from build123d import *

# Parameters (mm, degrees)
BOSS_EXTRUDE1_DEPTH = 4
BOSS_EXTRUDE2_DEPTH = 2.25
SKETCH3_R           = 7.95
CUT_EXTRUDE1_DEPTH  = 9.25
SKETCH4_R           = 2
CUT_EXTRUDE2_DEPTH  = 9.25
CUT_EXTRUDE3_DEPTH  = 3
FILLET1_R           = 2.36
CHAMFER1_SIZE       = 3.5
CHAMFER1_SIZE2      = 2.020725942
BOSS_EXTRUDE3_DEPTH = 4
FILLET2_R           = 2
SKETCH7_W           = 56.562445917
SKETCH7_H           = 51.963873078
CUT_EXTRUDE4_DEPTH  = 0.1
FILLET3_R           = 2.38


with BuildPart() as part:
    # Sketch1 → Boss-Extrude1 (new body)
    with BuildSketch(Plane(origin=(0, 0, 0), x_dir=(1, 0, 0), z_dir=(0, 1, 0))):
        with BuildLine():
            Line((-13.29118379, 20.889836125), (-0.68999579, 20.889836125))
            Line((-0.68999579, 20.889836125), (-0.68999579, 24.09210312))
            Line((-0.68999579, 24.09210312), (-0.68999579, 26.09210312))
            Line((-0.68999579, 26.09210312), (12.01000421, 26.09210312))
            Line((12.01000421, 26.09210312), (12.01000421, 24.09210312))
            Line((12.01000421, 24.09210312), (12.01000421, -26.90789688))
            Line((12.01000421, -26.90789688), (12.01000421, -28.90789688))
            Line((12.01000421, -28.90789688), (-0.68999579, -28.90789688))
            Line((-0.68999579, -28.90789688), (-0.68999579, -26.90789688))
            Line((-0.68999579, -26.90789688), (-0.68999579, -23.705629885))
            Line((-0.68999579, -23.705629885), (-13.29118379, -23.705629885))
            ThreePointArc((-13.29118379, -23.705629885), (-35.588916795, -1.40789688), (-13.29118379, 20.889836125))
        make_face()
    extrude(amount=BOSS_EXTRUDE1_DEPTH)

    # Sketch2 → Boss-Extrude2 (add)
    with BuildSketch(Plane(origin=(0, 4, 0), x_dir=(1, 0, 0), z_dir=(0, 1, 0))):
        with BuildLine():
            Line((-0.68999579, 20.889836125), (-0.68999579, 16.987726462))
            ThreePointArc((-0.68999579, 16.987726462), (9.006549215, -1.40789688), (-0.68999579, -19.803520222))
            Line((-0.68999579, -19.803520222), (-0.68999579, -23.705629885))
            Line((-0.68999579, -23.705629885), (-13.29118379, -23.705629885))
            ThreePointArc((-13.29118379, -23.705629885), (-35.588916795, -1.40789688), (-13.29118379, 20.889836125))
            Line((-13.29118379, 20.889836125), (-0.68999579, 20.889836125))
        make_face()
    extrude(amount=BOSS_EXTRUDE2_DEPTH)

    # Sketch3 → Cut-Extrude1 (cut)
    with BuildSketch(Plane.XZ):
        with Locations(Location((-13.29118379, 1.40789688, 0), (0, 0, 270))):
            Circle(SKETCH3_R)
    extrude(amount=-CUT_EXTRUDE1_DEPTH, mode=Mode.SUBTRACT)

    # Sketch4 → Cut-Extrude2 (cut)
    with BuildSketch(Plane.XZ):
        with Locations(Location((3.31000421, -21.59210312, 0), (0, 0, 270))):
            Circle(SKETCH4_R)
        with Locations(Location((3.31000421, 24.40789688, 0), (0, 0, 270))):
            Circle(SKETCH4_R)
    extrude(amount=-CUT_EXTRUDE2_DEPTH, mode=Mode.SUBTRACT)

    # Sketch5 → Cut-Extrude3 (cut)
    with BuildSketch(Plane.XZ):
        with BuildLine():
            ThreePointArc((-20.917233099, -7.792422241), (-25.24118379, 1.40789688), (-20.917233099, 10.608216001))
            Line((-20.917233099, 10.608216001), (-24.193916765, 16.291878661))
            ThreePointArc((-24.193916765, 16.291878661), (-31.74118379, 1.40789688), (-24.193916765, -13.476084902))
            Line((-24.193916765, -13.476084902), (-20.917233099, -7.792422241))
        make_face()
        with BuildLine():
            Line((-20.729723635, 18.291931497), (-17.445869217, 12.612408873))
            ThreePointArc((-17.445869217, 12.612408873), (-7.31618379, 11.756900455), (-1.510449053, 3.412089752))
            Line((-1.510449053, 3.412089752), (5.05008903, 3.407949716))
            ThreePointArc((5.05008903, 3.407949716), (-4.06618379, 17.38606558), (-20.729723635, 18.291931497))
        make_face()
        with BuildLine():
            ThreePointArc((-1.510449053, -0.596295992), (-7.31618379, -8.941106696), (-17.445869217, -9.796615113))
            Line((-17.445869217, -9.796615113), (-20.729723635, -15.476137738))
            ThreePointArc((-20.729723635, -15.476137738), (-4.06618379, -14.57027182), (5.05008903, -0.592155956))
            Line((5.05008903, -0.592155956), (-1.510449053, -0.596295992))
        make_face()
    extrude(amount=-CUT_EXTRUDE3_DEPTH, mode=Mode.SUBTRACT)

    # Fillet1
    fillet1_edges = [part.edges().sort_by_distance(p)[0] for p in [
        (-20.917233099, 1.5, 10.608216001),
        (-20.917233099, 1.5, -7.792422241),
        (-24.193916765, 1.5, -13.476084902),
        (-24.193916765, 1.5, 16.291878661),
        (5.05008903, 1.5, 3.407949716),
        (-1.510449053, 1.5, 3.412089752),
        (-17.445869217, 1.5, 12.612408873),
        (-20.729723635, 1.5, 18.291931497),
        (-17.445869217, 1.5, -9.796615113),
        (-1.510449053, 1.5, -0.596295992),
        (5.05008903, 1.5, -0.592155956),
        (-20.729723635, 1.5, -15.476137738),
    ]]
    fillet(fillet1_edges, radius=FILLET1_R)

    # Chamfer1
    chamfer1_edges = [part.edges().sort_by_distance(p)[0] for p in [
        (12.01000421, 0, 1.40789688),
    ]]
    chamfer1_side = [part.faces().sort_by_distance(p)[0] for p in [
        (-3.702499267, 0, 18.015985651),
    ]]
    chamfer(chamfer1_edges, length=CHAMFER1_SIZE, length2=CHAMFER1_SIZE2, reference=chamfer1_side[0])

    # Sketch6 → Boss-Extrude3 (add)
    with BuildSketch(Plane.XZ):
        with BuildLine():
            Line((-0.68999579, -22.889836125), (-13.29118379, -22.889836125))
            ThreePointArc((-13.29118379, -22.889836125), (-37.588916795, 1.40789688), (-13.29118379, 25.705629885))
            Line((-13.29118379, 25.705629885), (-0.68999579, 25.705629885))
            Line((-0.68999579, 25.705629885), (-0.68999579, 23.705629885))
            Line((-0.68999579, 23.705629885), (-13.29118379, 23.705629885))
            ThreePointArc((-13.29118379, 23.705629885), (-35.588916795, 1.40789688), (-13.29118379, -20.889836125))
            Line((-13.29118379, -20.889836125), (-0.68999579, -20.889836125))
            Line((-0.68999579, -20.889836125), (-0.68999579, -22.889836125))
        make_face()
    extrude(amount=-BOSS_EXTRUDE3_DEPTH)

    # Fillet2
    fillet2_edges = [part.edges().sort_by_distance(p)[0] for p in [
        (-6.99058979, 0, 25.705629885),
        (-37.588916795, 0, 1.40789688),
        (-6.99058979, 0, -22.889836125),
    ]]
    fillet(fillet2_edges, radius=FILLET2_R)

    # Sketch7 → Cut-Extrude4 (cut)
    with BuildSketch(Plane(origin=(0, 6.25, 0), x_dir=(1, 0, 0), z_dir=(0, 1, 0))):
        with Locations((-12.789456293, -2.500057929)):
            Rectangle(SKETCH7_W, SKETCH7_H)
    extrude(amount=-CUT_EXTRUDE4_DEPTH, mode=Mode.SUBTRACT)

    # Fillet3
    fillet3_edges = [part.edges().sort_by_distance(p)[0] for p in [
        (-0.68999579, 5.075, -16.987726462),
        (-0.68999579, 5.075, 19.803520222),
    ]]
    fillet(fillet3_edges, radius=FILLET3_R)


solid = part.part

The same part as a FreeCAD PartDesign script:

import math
import FreeCAD as App
import Part
import Sketcher


def edges_at(feature, points):
    """Names of the edges that pass closest to the given points."""
    edges = feature.Shape.Edges
    near = lambda p: min(range(len(edges)), key=lambda i: edges[i].distToShape(Part.Vertex(*p))[0])
    return sorted({f"Edge{near(p) + 1}" for p in points})

doc = App.newDocument("Part")
body = doc.addObject("PartDesign::Body", "Body")

sketch1 = body.newObject("Sketcher::SketchObject", "Sketch")
sketch1.AttachmentSupport = (doc.getObject("XZ_Plane"), [""])
sketch1.MapMode = "FlatFace"
sketch1.addGeometry([
    Part.LineSegment(App.Vector(-0.689996, -20.889836, 0), App.Vector(-13.291184, -20.889836, 0)),
    Part.ArcOfCircle(Part.Circle(App.Vector(-13.291184, 1.407897, 0), App.Vector(0, 0, 1), 22.297733), math.radians(90), math.radians(270)),
    Part.LineSegment(App.Vector(-13.291184, 23.70563, 0), App.Vector(-0.689996, 23.70563, 0)),
    Part.LineSegment(App.Vector(-0.689996, 23.70563, 0), App.Vector(-0.689996, 28.907897, 0)),
    Part.LineSegment(App.Vector(-0.689996, 28.907897, 0), App.Vector(12.010004, 28.907897, 0)),
    Part.LineSegment(App.Vector(12.010004, 28.907897, 0), App.Vector(12.010004, -26.092103, 0)),
    Part.LineSegment(App.Vector(12.010004, -26.092103, 0), App.Vector(-0.689996, -26.092103, 0)),
    Part.LineSegment(App.Vector(-0.689996, -26.092103, 0), App.Vector(-0.689996, -20.889836, 0)),
], False)
sketch1.addConstraint([
    Sketcher.Constraint("Tangent", 0, 2, 1, 2),
    Sketcher.Constraint("Tangent", 1, 1, 2, 1),
    Sketcher.Constraint("Coincident", 2, 2, 3, 1),
    Sketcher.Constraint("Coincident", 3, 2, 4, 1),
    Sketcher.Constraint("Coincident", 4, 2, 5, 1),
    Sketcher.Constraint("Coincident", 5, 2, 6, 1),
    Sketcher.Constraint("Coincident", 6, 2, 7, 1),
    Sketcher.Constraint("Coincident", 7, 2, 0, 1),
    Sketcher.Constraint("Horizontal", 0),
    Sketcher.Constraint("Horizontal", 2),
    Sketcher.Constraint("Vertical", 3),
    Sketcher.Constraint("Horizontal", 4),
    Sketcher.Constraint("Vertical", 5),
    Sketcher.Constraint("Horizontal", 6),
    Sketcher.Constraint("Vertical", 7),
    Sketcher.Constraint("Vertical", 3, 2, 6, 2),
    Sketcher.Constraint("Equal", 3, 7),
    Sketcher.Constraint("DistanceY", 5, 2, 5, 1, 55.0),
    Sketcher.Constraint("DistanceX", 4, 1, 4, 2, 12.7),
    Sketcher.Constraint("Radius", 1, 22.297733),
    Sketcher.Constraint("DistanceX", 0, 2, 0, 1, 12.601188),
    Sketcher.Constraint("DistanceY", -1, 1, 1, 1, 23.70563),
    Sketcher.Constraint("DistanceX", 1, 3, -1, 1, 13.291184),
])
pad1 = body.newObject("PartDesign::Pad", "Pad")
pad1.Profile = sketch1
pad1.Length = 4
pad1.Reversed = True

sketch2 = body.newObject("Sketcher::SketchObject", "Sketch001")
sketch2.AttachmentSupport = (doc.getObject("XZ_Plane"), [""])
sketch2.MapMode = "FlatFace"
sketch2.AttachmentOffset = App.Placement(App.Vector(0, 0, -4), App.Rotation())
sketch2.addGeometry([
    Part.LineSegment(App.Vector(-0.689996, -16.987726, 0), App.Vector(-0.689996, -20.889836, 0)),
    Part.LineSegment(App.Vector(-0.689996, -20.889836, 0), App.Vector(-13.291184, -20.889836, 0)),
    Part.ArcOfCircle(Part.Circle(App.Vector(-13.291184, 1.407897, 0), App.Vector(0, 0, 1), 22.297733), math.radians(90), math.radians(270)),
    Part.LineSegment(App.Vector(-13.291184, 23.70563, 0), App.Vector(-0.689996, 23.70563, 0)),
    Part.LineSegment(App.Vector(-0.689996, 23.70563, 0), App.Vector(-0.689996, 19.80352, 0)),
    Part.ArcOfCircle(Part.Circle(App.Vector(-13.291184, 1.407897, 0), App.Vector(0, 0, 1), 22.297733), math.radians(-55.588462), math.radians(55.588462)),
], False)
sketch2.addConstraint([
    Sketcher.Constraint("Coincident", 0, 2, 1, 1),
    Sketcher.Constraint("Tangent", 1, 2, 2, 2),
    Sketcher.Constraint("Tangent", 2, 1, 3, 1),
    Sketcher.Constraint("Coincident", 3, 2, 4, 1),
    Sketcher.Constraint("Coincident", 4, 2, 5, 2),
    Sketcher.Constraint("Coincident", 5, 1, 0, 1),
    Sketcher.Constraint("Vertical", 0),
    Sketcher.Constraint("Horizontal", 1),
    Sketcher.Constraint("Horizontal", 3),
    Sketcher.Constraint("Vertical", 4),
    Sketcher.Constraint("Coincident", 5, 3, 2, 3),
    Sketcher.Constraint("Equal", 2, 5),
    Sketcher.Constraint("Vertical", 0, 2, 3, 2),
    Sketcher.Constraint("Radius", 2, 22.297733),
    Sketcher.Constraint("DistanceY", 0, 2, 0, 1, 3.90211),
    Sketcher.Constraint("DistanceY", -1, 1, 2, 1, 23.70563),
    Sketcher.Constraint("DistanceX", 2, 3, -1, 1, 13.291184),
])
pad2 = body.newObject("PartDesign::Pad", "Pad001")
pad2.Profile = sketch2
pad2.Length = 2.25
pad2.Reversed = True

sketch3 = body.newObject("Sketcher::SketchObject", "Sketch002")
sketch3.AttachmentSupport = (doc.getObject("XZ_Plane"), [""])
sketch3.MapMode = "FlatFace"
sketch3.addGeometry(Part.Circle(App.Vector(-13.291184, 1.407897, 0), App.Vector(0, 0, 1), 7.95), False)
sketch3.addConstraint([
    Sketcher.Constraint("Diameter", 0, 15.9),
    Sketcher.Constraint("DistanceX", 0, 3, -1, 1, 13.291184),
    Sketcher.Constraint("DistanceY", -1, 1, 0, 3, 1.407897),
])
pocket1 = body.newObject("PartDesign::Pocket", "Pocket")
pocket1.Profile = sketch3
pocket1.Length = 9.25

sketch4 = body.newObject("Sketcher::SketchObject", "Sketch003")
sketch4.AttachmentSupport = (doc.getObject("XZ_Plane"), [""])
sketch4.MapMode = "FlatFace"
sketch4.addGeometry([
    Part.Circle(App.Vector(3.310004, -21.592103, 0), App.Vector(0, 0, 1), 2),
    Part.Circle(App.Vector(3.310004, 24.407897, 0), App.Vector(0, 0, 1), 2),
], False)
sketch4.addConstraint([
    Sketcher.Constraint("Equal", 0, 1),
    Sketcher.Constraint("Vertical", 0, 3, 1, 3),
    Sketcher.Constraint("Diameter", 0, 4.0),
    Sketcher.Constraint("DistanceY", 0, 3, 1, 3, 46.0),
    Sketcher.Constraint("DistanceX", -1, 1, 0, 3, 3.310004),
    Sketcher.Constraint("DistanceY", 0, 3, -1, 1, 21.592103),
])
pocket2 = body.newObject("PartDesign::Pocket", "Pocket001")
pocket2.Profile = sketch4
pocket2.Length = 9.25

sketch5 = body.newObject("Sketcher::SketchObject", "Sketch004")
sketch5.AttachmentSupport = (doc.getObject("XZ_Plane"), [""])
sketch5.MapMode = "FlatFace"
sketch5.addGeometry([
    Part.ArcOfCircle(Part.Circle(App.Vector(-13.291184, 1.407897, 0), App.Vector(0, 0, 1), 11.95), math.radians(129.654984), math.radians(230.345016)),
    Part.LineSegment(App.Vector(-20.917233, 10.608216, 0), App.Vector(-24.193917, 16.291879, 0)),
    Part.ArcOfCircle(Part.Circle(App.Vector(-13.291184, 1.407897, 0), App.Vector(0, 0, 1), 18.45), math.radians(126.223318), math.radians(233.776682)),
    Part.LineSegment(App.Vector(-24.193917, -13.476085, 0), App.Vector(-20.917233, -7.792422, 0)),
    Part.LineSegment(App.Vector(-20.729724, 18.291931, 0), App.Vector(-17.445869, 12.612409, 0)),
    Part.ArcOfCircle(Part.Circle(App.Vector(-13.291184, 1.407897, 0), App.Vector(0, 0, 1), 11.95), math.radians(9.654984), math.radians(110.345016)),
    Part.LineSegment(App.Vector(-1.510449, 3.41209, 0), App.Vector(5.050089, 3.40795, 0)),
    Part.ArcOfCircle(Part.Circle(App.Vector(-13.291184, 1.407897, 0), App.Vector(0, 0, 1), 18.45), math.radians(6.223318), math.radians(113.776682)),
    Part.ArcOfCircle(Part.Circle(App.Vector(-13.291184, 1.407897, 0), App.Vector(0, 0, 1), 11.95), math.radians(-110.345016), math.radians(-9.654984)),
    Part.LineSegment(App.Vector(-17.445869, -9.796615, 0), App.Vector(-20.729724, -15.476138, 0)),
    Part.ArcOfCircle(Part.Circle(App.Vector(-13.291184, 1.407897, 0), App.Vector(0, 0, 1), 18.45), math.radians(-113.776682), math.radians(-6.223318)),
    Part.LineSegment(App.Vector(5.050089, -0.592156, 0), App.Vector(-1.510449, -0.596296, 0)),
], False)
sketch5.addConstraint([
    Sketcher.Constraint("Coincident", 0, 1, 1, 1),
    Sketcher.Constraint("Coincident", 1, 2, 2, 1),
    Sketcher.Constraint("Coincident", 2, 2, 3, 1),
    Sketcher.Constraint("Coincident", 3, 2, 0, 2),
    Sketcher.Constraint("Coincident", 4, 2, 5, 2),
    Sketcher.Constraint("Coincident", 5, 1, 6, 1),
    Sketcher.Constraint("Coincident", 6, 2, 7, 1),
    Sketcher.Constraint("Coincident", 7, 2, 4, 1),
    Sketcher.Constraint("Coincident", 8, 1, 9, 1),
    Sketcher.Constraint("Coincident", 9, 2, 10, 1),
    Sketcher.Constraint("Coincident", 10, 2, 11, 1),
    Sketcher.Constraint("Coincident", 11, 2, 8, 2),
    Sketcher.Constraint("Coincident", 2, 3, 0, 3),
    Sketcher.Constraint("Coincident", 5, 3, 0, 3),
    Sketcher.Constraint("Coincident", 7, 3, 0, 3),
    Sketcher.Constraint("Coincident", 8, 3, 0, 3),
    Sketcher.Constraint("Coincident", 10, 3, 0, 3),
    Sketcher.Constraint("Equal", 0, 5),
    Sketcher.Constraint("Equal", 2, 7),
    Sketcher.Constraint("Equal", 5, 8),
    Sketcher.Constraint("Equal", 7, 10),
    Sketcher.Constraint("Vertical", 1, 2, 2, 2),
    Sketcher.Constraint("Vertical", 0, 1, 3, 2),
    Sketcher.Constraint("Vertical", 4, 2, 8, 1),
    Sketcher.Constraint("Vertical", 7, 2, 9, 2),
    Sketcher.Constraint("Vertical", 6, 2, 10, 2),
    Sketcher.Constraint("Vertical", 5, 1, 11, 2),
    Sketcher.Constraint("Equal", 3, 4),
    Sketcher.Constraint("Equal", 4, 6),
    Sketcher.Constraint("Radius", 0, 11.95),
    Sketcher.Constraint("Radius", 2, 18.45),
    Sketcher.Constraint("Distance", 1, 6.560539),
    Sketcher.Constraint("DistanceY", -1, 1, 1, 2, 16.291879),
    Sketcher.Constraint("DistanceX", 4, 2, -1, 1, 17.445869),
    Sketcher.Constraint("DistanceY", -1, 1, 4, 2, 12.612409),
    Sketcher.Constraint("DistanceX", 5, 1, -1, 1, 1.510449),
    Sketcher.Constraint("DistanceY", -1, 1, 5, 1, 3.41209),
])
pocket3 = body.newObject("PartDesign::Pocket", "Pocket002")
pocket3.Profile = sketch5
pocket3.Length = 3
doc.recompute()

fillet = body.newObject("PartDesign::Fillet", "Fillet")
fillet.Base = (pocket3, edges_at(pocket3, [
    (-20.917, 1.5, 10.608),
    (-20.917, 1.5, -7.792),
    (-24.194, 1.5, -13.476),
    (-24.194, 1.5, 16.292),
    (5.05, 1.5, 3.408),
    (-1.51, 1.5, 3.412),
    (-17.446, 1.5, 12.612),
    (-20.73, 1.5, 18.292),
    (-17.446, 1.5, -9.797),
    (-1.51, 1.5, -0.596),
    (5.05, 1.5, -0.592),
    (-20.73, 1.5, -15.476),
]))
fillet.Radius = 2.36
doc.recompute()

chamfer = body.newObject("PartDesign::Chamfer", "Chamfer")
chamfer.Base = (fillet, edges_at(fillet, [(12.01, 0, 1.408)]))
chamfer.ChamferType = "Two distances"
chamfer.Size = 3.5
chamfer.Size2 = 2.020726

sketch6 = body.newObject("Sketcher::SketchObject", "Sketch005")
sketch6.AttachmentSupport = (doc.getObject("XZ_Plane"), [""])
sketch6.MapMode = "FlatFace"
sketch6.addGeometry([
    Part.LineSegment(App.Vector(-13.291184, -22.889836, 0), App.Vector(-0.689996, -22.889836, 0)),
    Part.LineSegment(App.Vector(-0.689996, -22.889836, 0), App.Vector(-0.689996, -20.889836, 0)),
    Part.LineSegment(App.Vector(-0.689996, -20.889836, 0), App.Vector(-13.291184, -20.889836, 0)),
    Part.ArcOfCircle(Part.Circle(App.Vector(-13.291184, 1.407897, 0), App.Vector(0, 0, 1), 22.297733), math.radians(90), math.radians(270)),
    Part.LineSegment(App.Vector(-13.291184, 23.70563, 0), App.Vector(-0.689996, 23.70563, 0)),
    Part.LineSegment(App.Vector(-0.689996, 23.70563, 0), App.Vector(-0.689996, 25.70563, 0)),
    Part.LineSegment(App.Vector(-0.689996, 25.70563, 0), App.Vector(-13.291184, 25.70563, 0)),
    Part.ArcOfCircle(Part.Circle(App.Vector(-13.291184, 1.407897, 0), App.Vector(0, 0, 1), 24.297733), math.radians(90), math.radians(270)),
], False)
sketch6.addConstraint([
    Sketcher.Constraint("Coincident", 0, 2, 1, 1),
    Sketcher.Constraint("Coincident", 1, 2, 2, 1),
    Sketcher.Constraint("Tangent", 2, 2, 3, 2),
    Sketcher.Constraint("Tangent", 3, 1, 4, 1),
    Sketcher.Constraint("Coincident", 4, 2, 5, 1),
    Sketcher.Constraint("Coincident", 5, 2, 6, 1),
    Sketcher.Constraint("Tangent", 6, 2, 7, 1),
    Sketcher.Constraint("Tangent", 7, 2, 0, 1),
    Sketcher.Constraint("Horizontal", 0),
    Sketcher.Constraint("Vertical", 1),
    Sketcher.Constraint("Horizontal", 2),
    Sketcher.Constraint("Horizontal", 4),
    Sketcher.Constraint("Vertical", 5),
    Sketcher.Constraint("Horizontal", 6),
    Sketcher.Constraint("Coincident", 7, 3, 3, 3),
    Sketcher.Constraint("Vertical", 1, 2, 4, 2),
    Sketcher.Constraint("DistanceY", 1, 1, 1, 2, 2.0),
    Sketcher.Constraint("Radius", 3, 22.297733),
    Sketcher.Constraint("DistanceX", 0, 1, 0, 2, 12.601188),
    Sketcher.Constraint("DistanceY", -1, 1, 3, 1, 23.70563),
    Sketcher.Constraint("DistanceX", 3, 3, -1, 1, 13.291184),
])
pad3 = body.newObject("PartDesign::Pad", "Pad002")
pad3.Profile = sketch6
pad3.Length = 4
pad3.Reversed = True
doc.recompute()

fillet2 = body.newObject("PartDesign::Fillet", "Fillet001")
fillet2.Base = (pad3, edges_at(pad3, [(-6.991, 0, 25.706), (-37.589, 0, 1.408), (-6.991, 0, -22.89)]))
fillet2.Radius = 2

sketch7 = body.newObject("Sketcher::SketchObject", "Sketch006")
sketch7.AttachmentSupport = (doc.getObject("XZ_Plane"), [""])
sketch7.MapMode = "FlatFace"
sketch7.AttachmentOffset = App.Placement(App.Vector(0, 0, -6.25), App.Rotation())
sketch7.addGeometry([
    Part.LineSegment(App.Vector(-41.070679, -23.481879, 0), App.Vector(-41.070679, 28.481994, 0)),
    Part.LineSegment(App.Vector(-41.070679, 28.481994, 0), App.Vector(15.491767, 28.481994, 0)),
    Part.LineSegment(App.Vector(15.491767, 28.481994, 0), App.Vector(15.491767, -23.481879, 0)),
    Part.LineSegment(App.Vector(15.491767, -23.481879, 0), App.Vector(-41.070679, -23.481879, 0)),
], False)
sketch7.addConstraint([
    Sketcher.Constraint("Coincident", 0, 2, 1, 1),
    Sketcher.Constraint("Coincident", 1, 2, 2, 1),
    Sketcher.Constraint("Coincident", 2, 2, 3, 1),
    Sketcher.Constraint("Coincident", 3, 2, 0, 1),
    Sketcher.Constraint("Vertical", 0),
    Sketcher.Constraint("Horizontal", 1),
    Sketcher.Constraint("Vertical", 2),
    Sketcher.Constraint("Horizontal", 3),
    Sketcher.Constraint("DistanceX", 1, 1, 1, 2, 56.562446),
    Sketcher.Constraint("DistanceY", 0, 1, 0, 2, 51.963873),
    Sketcher.Constraint("DistanceX", 0, 2, -1, 1, 41.070679),
    Sketcher.Constraint("DistanceY", 2, 2, -1, 1, 23.481879),
])
pocket4 = body.newObject("PartDesign::Pocket", "Pocket003")
pocket4.Profile = sketch7
pocket4.Length = 0.1
pocket4.Reversed = True
doc.recompute()

fillet3 = body.newObject("PartDesign::Fillet", "Fillet002")
fillet3.Base = (pocket4, edges_at(pocket4, [(-0.69, 5.075, -16.988), (-0.69, 5.075, 19.804)]))
fillet3.Radius = 2.38

doc.recompute()
